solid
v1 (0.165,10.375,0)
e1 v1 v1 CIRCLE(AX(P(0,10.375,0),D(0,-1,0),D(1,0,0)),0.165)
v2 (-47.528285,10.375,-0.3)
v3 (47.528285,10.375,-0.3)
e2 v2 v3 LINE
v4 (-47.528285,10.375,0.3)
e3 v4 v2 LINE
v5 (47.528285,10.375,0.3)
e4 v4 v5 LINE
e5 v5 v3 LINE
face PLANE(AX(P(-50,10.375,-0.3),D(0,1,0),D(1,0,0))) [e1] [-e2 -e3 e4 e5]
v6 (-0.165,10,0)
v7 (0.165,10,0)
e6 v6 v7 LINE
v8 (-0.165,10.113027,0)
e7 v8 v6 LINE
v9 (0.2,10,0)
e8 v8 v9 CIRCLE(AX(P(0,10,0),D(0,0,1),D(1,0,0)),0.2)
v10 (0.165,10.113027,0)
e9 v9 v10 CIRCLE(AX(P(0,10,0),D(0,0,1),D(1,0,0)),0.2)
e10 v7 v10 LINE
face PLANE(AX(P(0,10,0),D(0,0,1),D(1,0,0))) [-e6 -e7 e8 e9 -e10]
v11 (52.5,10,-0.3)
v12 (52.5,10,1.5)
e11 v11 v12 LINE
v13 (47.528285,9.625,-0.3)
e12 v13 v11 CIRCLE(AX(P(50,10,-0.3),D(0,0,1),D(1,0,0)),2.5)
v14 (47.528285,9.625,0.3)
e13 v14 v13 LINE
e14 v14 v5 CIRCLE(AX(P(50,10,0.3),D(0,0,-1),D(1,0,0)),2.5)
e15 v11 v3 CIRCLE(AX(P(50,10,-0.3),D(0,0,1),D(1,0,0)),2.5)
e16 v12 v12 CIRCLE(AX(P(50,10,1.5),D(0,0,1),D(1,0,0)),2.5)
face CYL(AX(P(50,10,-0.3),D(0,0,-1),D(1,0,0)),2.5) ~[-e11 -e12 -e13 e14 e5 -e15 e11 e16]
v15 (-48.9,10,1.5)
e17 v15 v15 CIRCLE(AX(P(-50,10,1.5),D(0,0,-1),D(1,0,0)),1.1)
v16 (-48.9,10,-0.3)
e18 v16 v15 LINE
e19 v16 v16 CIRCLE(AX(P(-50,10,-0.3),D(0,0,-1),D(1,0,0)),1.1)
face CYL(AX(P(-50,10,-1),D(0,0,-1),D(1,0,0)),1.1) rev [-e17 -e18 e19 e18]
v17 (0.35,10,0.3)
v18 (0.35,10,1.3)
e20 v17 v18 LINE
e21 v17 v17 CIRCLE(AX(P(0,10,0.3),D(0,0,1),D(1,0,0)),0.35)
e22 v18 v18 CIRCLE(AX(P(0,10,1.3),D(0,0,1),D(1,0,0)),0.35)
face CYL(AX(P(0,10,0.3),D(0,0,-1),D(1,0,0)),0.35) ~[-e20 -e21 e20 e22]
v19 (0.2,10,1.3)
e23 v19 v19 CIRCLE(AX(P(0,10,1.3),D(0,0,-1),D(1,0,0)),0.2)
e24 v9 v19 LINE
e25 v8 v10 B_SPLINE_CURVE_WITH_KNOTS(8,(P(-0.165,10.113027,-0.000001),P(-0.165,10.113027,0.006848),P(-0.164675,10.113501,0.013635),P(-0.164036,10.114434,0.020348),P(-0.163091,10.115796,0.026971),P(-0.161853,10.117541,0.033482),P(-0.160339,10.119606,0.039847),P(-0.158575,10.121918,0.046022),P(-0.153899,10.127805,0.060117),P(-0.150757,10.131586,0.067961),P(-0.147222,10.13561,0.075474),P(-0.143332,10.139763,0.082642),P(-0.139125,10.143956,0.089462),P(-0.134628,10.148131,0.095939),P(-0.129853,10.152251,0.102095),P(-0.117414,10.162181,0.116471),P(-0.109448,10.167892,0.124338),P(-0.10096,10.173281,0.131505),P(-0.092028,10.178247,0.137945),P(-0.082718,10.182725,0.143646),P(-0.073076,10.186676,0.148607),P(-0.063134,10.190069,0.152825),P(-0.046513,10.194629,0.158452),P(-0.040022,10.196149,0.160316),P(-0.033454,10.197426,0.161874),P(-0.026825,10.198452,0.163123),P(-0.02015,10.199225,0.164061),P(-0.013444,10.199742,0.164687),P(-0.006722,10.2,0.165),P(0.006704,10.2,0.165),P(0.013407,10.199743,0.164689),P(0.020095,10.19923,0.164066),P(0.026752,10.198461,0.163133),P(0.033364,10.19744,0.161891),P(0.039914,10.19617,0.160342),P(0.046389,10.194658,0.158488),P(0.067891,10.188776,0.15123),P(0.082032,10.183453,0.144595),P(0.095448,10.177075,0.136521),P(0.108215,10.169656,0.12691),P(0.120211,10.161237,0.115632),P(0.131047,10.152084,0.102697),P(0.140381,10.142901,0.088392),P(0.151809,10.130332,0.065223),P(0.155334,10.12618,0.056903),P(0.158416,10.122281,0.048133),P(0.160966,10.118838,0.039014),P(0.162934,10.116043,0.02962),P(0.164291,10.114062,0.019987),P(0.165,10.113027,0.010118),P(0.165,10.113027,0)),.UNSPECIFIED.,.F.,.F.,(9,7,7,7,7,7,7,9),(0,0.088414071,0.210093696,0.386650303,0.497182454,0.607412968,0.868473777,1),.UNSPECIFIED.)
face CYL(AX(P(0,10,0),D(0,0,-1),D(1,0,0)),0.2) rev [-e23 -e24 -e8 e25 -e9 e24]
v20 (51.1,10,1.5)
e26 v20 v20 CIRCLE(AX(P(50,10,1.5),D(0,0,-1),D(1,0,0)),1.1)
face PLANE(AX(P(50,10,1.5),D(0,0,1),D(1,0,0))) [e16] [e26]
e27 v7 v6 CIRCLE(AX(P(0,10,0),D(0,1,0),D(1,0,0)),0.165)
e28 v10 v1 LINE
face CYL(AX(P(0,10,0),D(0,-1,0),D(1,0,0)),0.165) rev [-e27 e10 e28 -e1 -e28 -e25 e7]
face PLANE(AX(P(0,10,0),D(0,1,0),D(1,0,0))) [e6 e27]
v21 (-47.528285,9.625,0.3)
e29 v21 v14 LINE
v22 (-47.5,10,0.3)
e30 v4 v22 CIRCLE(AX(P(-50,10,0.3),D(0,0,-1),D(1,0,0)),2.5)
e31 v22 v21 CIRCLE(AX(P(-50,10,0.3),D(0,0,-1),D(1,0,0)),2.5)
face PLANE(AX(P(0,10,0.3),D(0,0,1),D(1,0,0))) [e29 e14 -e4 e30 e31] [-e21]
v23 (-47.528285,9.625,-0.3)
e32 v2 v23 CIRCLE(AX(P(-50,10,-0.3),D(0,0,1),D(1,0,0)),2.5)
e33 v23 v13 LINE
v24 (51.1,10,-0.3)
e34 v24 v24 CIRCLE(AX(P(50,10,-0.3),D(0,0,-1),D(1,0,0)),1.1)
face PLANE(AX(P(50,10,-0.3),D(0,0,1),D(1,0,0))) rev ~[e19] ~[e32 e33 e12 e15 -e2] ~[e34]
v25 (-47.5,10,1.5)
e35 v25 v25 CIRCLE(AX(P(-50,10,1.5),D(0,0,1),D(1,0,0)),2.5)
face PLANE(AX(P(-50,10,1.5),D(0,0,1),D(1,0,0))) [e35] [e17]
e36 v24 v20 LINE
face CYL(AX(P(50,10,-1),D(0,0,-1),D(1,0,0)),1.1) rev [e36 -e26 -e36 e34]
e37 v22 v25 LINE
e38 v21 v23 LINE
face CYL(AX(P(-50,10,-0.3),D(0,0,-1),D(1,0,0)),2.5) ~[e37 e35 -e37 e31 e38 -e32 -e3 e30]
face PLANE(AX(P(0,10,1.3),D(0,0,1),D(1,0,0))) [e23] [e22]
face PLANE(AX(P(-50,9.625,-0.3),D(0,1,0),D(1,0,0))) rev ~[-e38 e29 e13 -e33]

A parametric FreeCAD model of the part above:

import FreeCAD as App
import Part
import Sketcher

V = App.Vector


def add_polygon(sketch, points):
    """Adds a closed chain of lines whose ends are joined by coincident constraints."""
    first, n = sketch.GeometryCount, len(points)
    for a, b in zip(points, points[1:] + points[:1]):
        sketch.addGeometry(Part.LineSegment(App.Vector(*a, 0), App.Vector(*b, 0)), False)
    for i in range(n):
        sketch.addConstraint(Sketcher.Constraint("Coincident", first + i, 2, first + (i + 1) % n, 1))

doc = App.newDocument("Part")
body = doc.addObject("PartDesign::Body", "Body")

# Sketch on XY plane
sketch1 = body.newObject("Sketcher::SketchObject", "Sketch")
sketch1.AttachmentSupport = (doc.getObject("XY_Plane"), [""])
sketch1.MapMode = "FlatFace"
sketch1.AttachmentOffset = App.Placement(V(0, 0, -1), App.Rotation())
sketch1.addGeometry(Part.Circle(V(6.3, -2.8, 0), V(0, 0, 1), 0.8), False)
sketch1.addConstraint(Sketcher.Constraint("Diameter", 0, 1.6))
sketch1.addConstraint(Sketcher.Constraint("DistanceX", -1, 1, 0, 3, 6.3))
sketch1.addConstraint(Sketcher.Constraint("DistanceY", 0, 3, -1, 1, 2.8))
pad1 = body.newObject("PartDesign::Pad", "Pad")
pad1.Profile = sketch1
pad1.Length = 10
body2 = doc.addObject("PartDesign::Body", "Body001")

# Sketch on XY plane
sketch2 = body2.newObject("Sketcher::SketchObject", "Sketch001")
sketch2.AttachmentSupport = (doc.getObject("XY_Plane001"), [""])
sketch2.MapMode = "FlatFace"
sketch2.addGeometry(Part.Circle(V(0, 0, 0), V(0, 0, 1), 0.2), False)
sketch2.addConstraint(Sketcher.Constraint("Coincident", 0, 3, -1, 1))
sketch2.addConstraint(Sketcher.Constraint("Diameter", 0, 0.4))
pad2 = body2.newObject("PartDesign::Pad", "Pad001")
pad2.Profile = sketch2
pad2.Length = 9
body3 = doc.addObject("PartDesign::Body", "Body002")

# Sketch on XY plane
sketch3 = body3.newObject("Sketcher::SketchObject", "Sketch002")
sketch3.AttachmentSupport = (doc.getObject("XY_Plane002"), [""])
sketch3.MapMode = "FlatFace"
sketch3.AttachmentOffset = App.Placement(V(0, 0, -1), App.Rotation())
sketch3.addGeometry(Part.Circle(V(-50, 0, 0), V(0, 0, 1), 1.1), False)
sketch3.addConstraint(Sketcher.Constraint("PointOnObject", 0, 3, -1))
sketch3.addConstraint(Sketcher.Constraint("Diameter", 0, 2.2))
sketch3.addConstraint(Sketcher.Constraint("DistanceX", 0, 3, -1, 1, 50.0))
pad3 = body3.newObject("PartDesign::Pad", "Pad002")
pad3.Profile = sketch3
pad3.Length = 4
body4 = doc.addObject("PartDesign::Body", "Body003")

# Sketch on XY plane
sketch4 = body4.newObject("Sketcher::SketchObject", "Sketch003")
sketch4.AttachmentSupport = (doc.getObject("XY_Plane003"), [""])
sketch4.MapMode = "FlatFace"
sketch4.AttachmentOffset = App.Placement(V(0, 0, -1), App.Rotation())
sketch4.addGeometry(Part.Circle(V(50, 0, 0), V(0, 0, 1), 1.1), False)
sketch4.addConstraint(Sketcher.Constraint("PointOnObject", 0, 3, -1))
sketch4.addConstraint(Sketcher.Constraint("Diameter", 0, 2.2))
sketch4.addConstraint(Sketcher.Constraint("DistanceX", -1, 1, 0, 3, 50.0))
pad4 = body4.newObject("PartDesign::Pad", "Pad003")
pad4.Profile = sketch4
pad4.Length = 4
body5 = doc.addObject("PartDesign::Body", "Body004")
body5.AllowCompound = True

# Sketch on XZ plane
sketch5 = body5.newObject("Sketcher::SketchObject", "Sketch004")
sketch5.AttachmentSupport = (doc.getObject("XZ_Plane004"), [""])
sketch5.MapMode = "FlatFace"
sketch5.addGeometry(Part.Circle(V(0, 0, 0), V(0, 0, 1), 0.165), False)
sketch5.addConstraint(Sketcher.Constraint("Coincident", 0, 3, -1, 1))
sketch5.addConstraint(Sketcher.Constraint("Diameter", 0, 0.33))
pad5 = body5.newObject("PartDesign::Pad", "Pad004")
pad5.Profile = sketch5
pad5.Length = 8
pad5.Reversed = True
doc.recompute()

boolean = body5.newObject("PartDesign::Boolean", "Boolean")
boolean.Type = "Fuse"
boolean.addObjects([body2])
doc.recompute()

boolean2 = body5.newObject("PartDesign::Boolean", "Boolean001")
boolean2.Type = "Fuse"
boolean2.addObjects([body3])
doc.recompute()

boolean3 = body5.newObject("PartDesign::Boolean", "Boolean002")
boolean3.Type = "Fuse"
boolean3.addObjects([body4])
body6 = doc.addObject("PartDesign::Body", "Body005")
body6.AllowCompound = True

# Sketch on XY plane
sketch6 = body6.newObject("Sketcher::SketchObject", "Sketch005")
sketch6.AttachmentSupport = (doc.getObject("XY_Plane005"), [""])
sketch6.MapMode = "FlatFace"
sketch6.AttachmentOffset = App.Placement(V(0, 0, -1), App.Rotation())
sketch6.addGeometry(Part.Circle(V(-6.3, -2.8, 0), V(0, 0, 1), 0.8), False)
sketch6.addConstraint(Sketcher.Constraint("Diameter", 0, 1.6))
sketch6.addConstraint(Sketcher.Constraint("DistanceX", 0, 3, -1, 1, 6.3))
sketch6.addConstraint(Sketcher.Constraint("DistanceY", 0, 3, -1, 1, 2.8))
pad6 = body6.newObject("PartDesign::Pad", "Pad005")
pad6.Profile = sketch6
pad6.Length = 10
doc.recompute()

boolean4 = body6.newObject("PartDesign::Boolean", "Boolean003")
boolean4.Type = "Fuse"
boolean4.addObjects([body])
doc.recompute()

boolean5 = body6.newObject("PartDesign::Boolean", "Boolean004")
boolean5.Type = "Fuse"
boolean5.addObjects([body5])
body7 = doc.addObject("PartDesign::Body", "Body006")

# Sketch on XY plane
sketch7 = body7.newObject("Sketcher::SketchObject", "Sketch006")
sketch7.AttachmentSupport = (doc.getObject("XY_Plane006"), [""])
sketch7.MapMode = "FlatFace"
sketch7.AttachmentOffset = App.Placement(V(0, 0, -0.3), App.Rotation())
sketch7.addGeometry(Part.Circle(V(50, 0, 0), V(0, 0, 1), 2.5), False)
sketch7.addConstraint(Sketcher.Constraint("PointOnObject", 0, 3, -1))
sketch7.addConstraint(Sketcher.Constraint("Diameter", 0, 5.0))
sketch7.addConstraint(Sketcher.Constraint("DistanceX", -1, 1, 0, 3, 50.0))
pad7 = body7.newObject("PartDesign::Pad", "Pad006")
pad7.Profile = sketch7
pad7.Length = 1.8
body8 = doc.addObject("PartDesign::Body", "Body007")

# Sketch on XY plane
sketch8 = body8.newObject("Sketcher::SketchObject", "Sketch007")
sketch8.AttachmentSupport = (doc.getObject("XY_Plane007"), [""])
sketch8.MapMode = "FlatFace"
sketch8.AttachmentOffset = App.Placement(V(0, 0, -0.3), App.Rotation())
sketch8.addGeometry(Part.Circle(V(-50, 0, 0), V(0, 0, 1), 2.5), False)
sketch8.addConstraint(Sketcher.Constraint("PointOnObject", 0, 3, -1))
sketch8.addConstraint(Sketcher.Constraint("Diameter", 0, 5.0))
sketch8.addConstraint(Sketcher.Constraint("DistanceX", 0, 3, -1, 1, 50.0))
pad8 = body8.newObject("PartDesign::Pad", "Pad007")
pad8.Profile = sketch8
pad8.Length = 1.8
body9 = doc.addObject("PartDesign::Body", "Body008")

# Sketch on XY plane
sketch9 = body9.newObject("Sketcher::SketchObject", "Sketch008")
sketch9.AttachmentSupport = (doc.getObject("XY_Plane008"), [""])
sketch9.MapMode = "FlatFace"
sketch9.AttachmentOffset = App.Placement(V(0, 0, 0.3), App.Rotation())
sketch9.addGeometry(Part.Circle(V(0, 0, 0), V(0, 0, 1), 0.35), False)
sketch9.addConstraint(Sketcher.Constraint("Coincident", 0, 3, -1, 1))
sketch9.addConstraint(Sketcher.Constraint("Diameter", 0, 0.7))
pad9 = body9.newObject("PartDesign::Pad", "Pad008")
pad9.Profile = sketch9
pad9.Length = 1
body10 = doc.addObject("PartDesign::Body", "Body009")

# Sketch on XY plane
sketch10 = body10.newObject("Sketcher::SketchObject", "Sketch009")
sketch10.AttachmentSupport = (doc.getObject("XY_Plane009"), [""])
sketch10.MapMode = "FlatFace"
sketch10.AttachmentOffset = App.Placement(V(0, 0, -0.3), App.Rotation())
add_polygon(sketch10, [(-50, 0.375), (-50, -0.375), (50, -0.375), (50, 0.375)])  # lines 0-3
sketch10.addConstraint(Sketcher.Constraint("Vertical", 0))
sketch10.addConstraint(Sketcher.Constraint("Horizontal", 1))
sketch10.addConstraint(Sketcher.Constraint("Vertical", 2))
sketch10.addConstraint(Sketcher.Constraint("Horizontal", 3))
sketch10.addConstraint(Sketcher.Constraint("Symmetric", 0, 2, 2, 2, -1, 1))
sketch10.addConstraint(Sketcher.Constraint("DistanceX", 1, 1, 1, 2, 100.0))
sketch10.addConstraint(Sketcher.Constraint("DistanceY", 0, 2, 0, 1, 0.75))
pad10 = body10.newObject("PartDesign::Pad", "Pad009")
pad10.Profile = sketch10
pad10.Length = 0.6
doc.recompute()

boolean6 = body10.newObject("PartDesign::Boolean", "Boolean005")
boolean6.Type = "Fuse"
boolean6.addObjects([body7])
doc.recompute()

boolean7 = body10.newObject("PartDesign::Boolean", "Boolean006")
boolean7.Type = "Fuse"
boolean7.addObjects([body8])
doc.recompute()

boolean8 = body10.newObject("PartDesign::Boolean", "Boolean007")
boolean8.Type = "Fuse"
boolean8.addObjects([body9])
doc.recompute()

boolean9 = body10.newObject("PartDesign::Boolean", "Boolean008")
boolean9.Type = "Cut"
boolean9.addObjects([body6])
body11 = doc.addObject("PartDesign::Body", "Body010")
doc.recompute()

body10.Placement = App.Placement(V(0, 10, 0), App.Rotation(V(0, 0, 1), 0))
boolean10 = body11.newObject("PartDesign::Boolean", "Boolean009")
boolean10.Type = "Fuse"
boolean10.addObjects([body10])

doc.recompute()
